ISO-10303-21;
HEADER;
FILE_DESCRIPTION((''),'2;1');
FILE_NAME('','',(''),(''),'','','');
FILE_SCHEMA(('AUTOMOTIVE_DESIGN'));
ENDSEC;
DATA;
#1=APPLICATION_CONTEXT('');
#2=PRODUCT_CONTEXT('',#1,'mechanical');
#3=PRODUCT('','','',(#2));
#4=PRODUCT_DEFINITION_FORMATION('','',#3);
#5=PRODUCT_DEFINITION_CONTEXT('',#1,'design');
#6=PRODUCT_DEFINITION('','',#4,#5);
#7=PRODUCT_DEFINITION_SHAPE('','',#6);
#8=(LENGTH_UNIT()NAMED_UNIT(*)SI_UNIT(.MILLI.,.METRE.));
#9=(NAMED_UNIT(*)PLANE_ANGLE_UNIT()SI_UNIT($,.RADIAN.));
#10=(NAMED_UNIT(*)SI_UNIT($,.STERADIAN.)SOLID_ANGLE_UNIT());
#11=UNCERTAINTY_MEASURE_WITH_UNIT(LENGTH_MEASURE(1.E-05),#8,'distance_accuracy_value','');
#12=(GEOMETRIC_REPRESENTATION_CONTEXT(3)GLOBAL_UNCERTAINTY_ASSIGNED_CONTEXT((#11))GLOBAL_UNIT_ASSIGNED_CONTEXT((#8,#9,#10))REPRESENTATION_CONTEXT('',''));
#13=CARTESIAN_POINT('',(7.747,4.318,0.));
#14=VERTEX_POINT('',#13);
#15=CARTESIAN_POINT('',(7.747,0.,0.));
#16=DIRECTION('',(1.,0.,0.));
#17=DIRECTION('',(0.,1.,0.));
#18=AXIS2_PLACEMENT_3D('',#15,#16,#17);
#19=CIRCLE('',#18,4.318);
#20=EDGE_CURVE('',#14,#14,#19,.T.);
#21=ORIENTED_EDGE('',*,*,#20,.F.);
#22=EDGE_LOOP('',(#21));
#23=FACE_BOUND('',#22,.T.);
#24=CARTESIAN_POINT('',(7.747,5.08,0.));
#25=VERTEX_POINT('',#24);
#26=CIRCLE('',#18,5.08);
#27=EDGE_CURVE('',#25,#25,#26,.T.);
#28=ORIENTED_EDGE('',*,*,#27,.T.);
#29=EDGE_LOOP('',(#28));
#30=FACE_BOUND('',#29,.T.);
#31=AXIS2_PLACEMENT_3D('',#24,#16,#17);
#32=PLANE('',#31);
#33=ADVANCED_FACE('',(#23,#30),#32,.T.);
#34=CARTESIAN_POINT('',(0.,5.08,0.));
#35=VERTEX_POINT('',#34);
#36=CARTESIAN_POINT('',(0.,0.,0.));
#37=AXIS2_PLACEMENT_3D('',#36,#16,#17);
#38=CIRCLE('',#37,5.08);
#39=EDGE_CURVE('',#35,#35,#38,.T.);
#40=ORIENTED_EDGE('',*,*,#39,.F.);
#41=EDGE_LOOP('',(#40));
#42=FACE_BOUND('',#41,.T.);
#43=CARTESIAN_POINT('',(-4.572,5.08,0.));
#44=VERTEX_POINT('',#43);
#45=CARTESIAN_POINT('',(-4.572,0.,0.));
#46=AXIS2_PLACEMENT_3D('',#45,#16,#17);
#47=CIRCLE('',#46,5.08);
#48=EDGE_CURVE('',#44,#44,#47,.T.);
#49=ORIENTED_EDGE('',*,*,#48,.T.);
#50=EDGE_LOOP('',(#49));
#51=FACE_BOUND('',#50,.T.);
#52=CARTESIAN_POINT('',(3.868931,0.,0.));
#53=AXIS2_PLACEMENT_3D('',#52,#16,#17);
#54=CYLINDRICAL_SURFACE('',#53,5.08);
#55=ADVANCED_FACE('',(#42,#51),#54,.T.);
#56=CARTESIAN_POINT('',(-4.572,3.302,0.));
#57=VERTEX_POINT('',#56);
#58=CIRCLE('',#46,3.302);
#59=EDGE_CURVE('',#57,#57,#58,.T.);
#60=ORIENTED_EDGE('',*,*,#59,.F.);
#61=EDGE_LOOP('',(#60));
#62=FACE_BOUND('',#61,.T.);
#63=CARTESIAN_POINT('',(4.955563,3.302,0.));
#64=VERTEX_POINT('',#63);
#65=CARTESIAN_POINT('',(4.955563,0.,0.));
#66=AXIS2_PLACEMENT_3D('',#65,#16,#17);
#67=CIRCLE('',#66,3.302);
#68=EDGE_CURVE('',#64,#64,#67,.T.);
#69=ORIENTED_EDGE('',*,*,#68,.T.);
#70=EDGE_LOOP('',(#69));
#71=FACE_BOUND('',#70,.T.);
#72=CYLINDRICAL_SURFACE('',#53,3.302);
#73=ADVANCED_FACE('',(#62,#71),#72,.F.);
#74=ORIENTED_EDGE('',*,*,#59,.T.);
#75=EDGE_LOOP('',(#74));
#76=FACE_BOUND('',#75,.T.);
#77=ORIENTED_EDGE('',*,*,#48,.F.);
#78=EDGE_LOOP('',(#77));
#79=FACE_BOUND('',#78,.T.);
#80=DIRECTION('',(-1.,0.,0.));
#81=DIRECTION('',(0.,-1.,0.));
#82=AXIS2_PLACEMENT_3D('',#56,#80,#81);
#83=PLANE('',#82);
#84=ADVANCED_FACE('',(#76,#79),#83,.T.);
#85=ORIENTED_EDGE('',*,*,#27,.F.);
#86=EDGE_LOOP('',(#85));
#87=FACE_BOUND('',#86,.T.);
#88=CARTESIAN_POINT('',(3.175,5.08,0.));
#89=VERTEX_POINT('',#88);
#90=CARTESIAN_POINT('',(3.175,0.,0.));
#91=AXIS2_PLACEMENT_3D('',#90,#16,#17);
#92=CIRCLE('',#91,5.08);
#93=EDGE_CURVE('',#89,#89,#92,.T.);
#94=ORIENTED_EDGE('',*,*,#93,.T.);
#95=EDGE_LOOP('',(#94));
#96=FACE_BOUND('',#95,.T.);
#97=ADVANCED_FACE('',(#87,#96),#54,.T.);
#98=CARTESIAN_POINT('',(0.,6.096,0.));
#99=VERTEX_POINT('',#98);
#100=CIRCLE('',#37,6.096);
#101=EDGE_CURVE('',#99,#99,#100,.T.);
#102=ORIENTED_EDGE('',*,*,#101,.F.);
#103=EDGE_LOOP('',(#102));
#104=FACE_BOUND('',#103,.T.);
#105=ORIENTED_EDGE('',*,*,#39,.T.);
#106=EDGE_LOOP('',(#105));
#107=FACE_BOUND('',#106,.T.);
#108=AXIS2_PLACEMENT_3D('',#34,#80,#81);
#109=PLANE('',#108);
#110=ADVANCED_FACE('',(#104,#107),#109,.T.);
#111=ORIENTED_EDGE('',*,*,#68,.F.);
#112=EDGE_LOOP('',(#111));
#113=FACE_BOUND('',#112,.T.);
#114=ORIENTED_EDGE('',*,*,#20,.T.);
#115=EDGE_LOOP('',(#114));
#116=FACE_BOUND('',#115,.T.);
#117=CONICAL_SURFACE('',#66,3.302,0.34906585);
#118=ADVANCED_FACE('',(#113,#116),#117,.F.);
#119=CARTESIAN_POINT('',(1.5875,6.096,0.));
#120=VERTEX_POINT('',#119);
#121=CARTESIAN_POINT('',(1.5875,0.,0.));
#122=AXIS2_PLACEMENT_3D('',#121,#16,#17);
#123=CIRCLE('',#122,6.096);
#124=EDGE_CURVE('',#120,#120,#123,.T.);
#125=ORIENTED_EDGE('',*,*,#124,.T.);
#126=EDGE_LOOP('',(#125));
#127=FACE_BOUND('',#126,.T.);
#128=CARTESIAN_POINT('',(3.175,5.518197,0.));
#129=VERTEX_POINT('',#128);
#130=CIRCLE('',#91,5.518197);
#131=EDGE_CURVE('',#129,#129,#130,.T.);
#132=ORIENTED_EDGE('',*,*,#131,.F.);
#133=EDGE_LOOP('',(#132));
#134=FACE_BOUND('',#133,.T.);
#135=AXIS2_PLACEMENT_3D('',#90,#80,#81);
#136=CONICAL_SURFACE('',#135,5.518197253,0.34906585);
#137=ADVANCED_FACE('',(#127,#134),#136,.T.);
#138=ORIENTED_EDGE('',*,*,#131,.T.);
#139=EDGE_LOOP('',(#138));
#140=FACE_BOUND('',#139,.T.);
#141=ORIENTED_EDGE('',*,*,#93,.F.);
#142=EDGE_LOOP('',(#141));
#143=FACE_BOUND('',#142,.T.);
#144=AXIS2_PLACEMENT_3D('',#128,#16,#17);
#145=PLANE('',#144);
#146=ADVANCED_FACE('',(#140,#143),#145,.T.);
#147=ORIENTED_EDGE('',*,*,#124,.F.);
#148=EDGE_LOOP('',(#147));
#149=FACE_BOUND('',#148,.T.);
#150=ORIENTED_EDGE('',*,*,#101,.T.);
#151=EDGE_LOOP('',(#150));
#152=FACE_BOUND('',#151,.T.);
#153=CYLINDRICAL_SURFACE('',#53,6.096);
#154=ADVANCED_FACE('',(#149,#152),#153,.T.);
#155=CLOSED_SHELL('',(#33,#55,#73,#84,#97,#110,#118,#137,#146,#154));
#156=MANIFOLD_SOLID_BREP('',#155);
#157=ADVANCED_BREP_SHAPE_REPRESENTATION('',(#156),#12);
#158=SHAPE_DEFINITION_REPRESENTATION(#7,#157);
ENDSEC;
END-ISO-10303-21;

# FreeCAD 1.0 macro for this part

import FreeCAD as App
import Part
import Sketcher

V = App.Vector
Q = App.Units.Quantity

doc = App.newDocument("Part")
body = doc.addObject("PartDesign::Body", "Body")

# Sketch on XY plane
sketch1 = body.newObject("Sketcher::SketchObject", "Sketch")
sketch1.AttachmentSupport = (doc.getObject("XY_Plane"), [""])
sketch1.MapMode = "FlatFace"
sketch1.addGeometry([
    Part.LineSegment(V(1.59, 6.1, 0), V(0, 6.1, 0)),  # 0
    Part.LineSegment(V(0, 6.1, 0), V(0, 5.08, 0)),  # 1
    Part.LineSegment(V(0, 5.08, 0), V(-4.57, 5.08, 0)),  # 2
    Part.LineSegment(V(-4.57, 5.08, 0), V(-4.57, 3.3, 0)),  # 3
    Part.LineSegment(V(-4.57, 3.3, 0), V(4.96, 3.3, 0)),  # 4
    Part.LineSegment(V(4.96, 3.3, 0), V(7.75, 4.32, 0)),  # 5
    Part.LineSegment(V(7.75, 4.32, 0), V(7.75, 5.08, 0)),  # 6
    Part.LineSegment(V(7.75, 5.08, 0), V(3.17, 5.08, 0)),  # 7
    Part.LineSegment(V(3.17, 5.08, 0), V(3.17, 5.52, 0)),  # 8
    Part.LineSegment(V(3.17, 5.52, 0), V(1.59, 6.1, 0)),  # 9
], False)
sketch1.addConstraint([
    Sketcher.Constraint("Coincident", 0, 2, 1, 1),
    Sketcher.Constraint("Coincident", 1, 2, 2, 1),
    Sketcher.Constraint("Coincident", 2, 2, 3, 1),
    Sketcher.Constraint("Coincident", 3, 2, 4, 1),
    Sketcher.Constraint("Coincident", 4, 2, 5, 1),
    Sketcher.Constraint("Coincident", 5, 2, 6, 1),
    Sketcher.Constraint("Coincident", 6, 2, 7, 1),
    Sketcher.Constraint("Coincident", 7, 2, 8, 1),
    Sketcher.Constraint("Coincident", 8, 2, 9, 1),
    Sketcher.Constraint("Coincident", 9, 2, 0, 1),
    Sketcher.Constraint("Horizontal", 0),
    Sketcher.Constraint("Vertical", 1),
    Sketcher.Constraint("Horizontal", 2),
    Sketcher.Constraint("Vertical", 3),
    Sketcher.Constraint("Horizontal", 4),
    Sketcher.Constraint("Vertical", 6),
    Sketcher.Constraint("Horizontal", 7),
    Sketcher.Constraint("Vertical", 8),
    Sketcher.Constraint("PointOnObject", 0, 2, -2),
    Sketcher.Constraint("Horizontal", 2, 2, 6, 2),
    Sketcher.Constraint("Equal", 2, 7),
    Sketcher.Constraint("Angle", 5, Q("20 deg")),
    Sketcher.Constraint("Angle", 9, Q("160 deg")),
    Sketcher.Constraint("DistanceX", 2, 2, 2, 1, Q("0.18 in")),
    Sketcher.Constraint("DistanceY", 1, 2, 1, 1, Q("0.04 in")),
    Sketcher.Constraint("DistanceY", 3, 2, 3, 1, Q("0.07 in")),
    Sketcher.Constraint("DistanceY", 6, 1, 6, 2, Q("0.03 in")),
    Sketcher.Constraint("DistanceY", -1, 1, 1, 2, Q("0.2 in")),
    Sketcher.Constraint("DistanceX", 0, 2, 0, 1, Q("0.0625 in")),
    Sketcher.Constraint("DistanceX", -1, 1, 5, 2, Q("0.305 in")),
])
revolution = body.newObject("PartDesign::Revolution", "Revolution")
revolution.Profile = sketch1
revolution.ReferenceAxis = (sketch1, ["H_Axis"])
revolution.Angle = 360

doc.recompute()
